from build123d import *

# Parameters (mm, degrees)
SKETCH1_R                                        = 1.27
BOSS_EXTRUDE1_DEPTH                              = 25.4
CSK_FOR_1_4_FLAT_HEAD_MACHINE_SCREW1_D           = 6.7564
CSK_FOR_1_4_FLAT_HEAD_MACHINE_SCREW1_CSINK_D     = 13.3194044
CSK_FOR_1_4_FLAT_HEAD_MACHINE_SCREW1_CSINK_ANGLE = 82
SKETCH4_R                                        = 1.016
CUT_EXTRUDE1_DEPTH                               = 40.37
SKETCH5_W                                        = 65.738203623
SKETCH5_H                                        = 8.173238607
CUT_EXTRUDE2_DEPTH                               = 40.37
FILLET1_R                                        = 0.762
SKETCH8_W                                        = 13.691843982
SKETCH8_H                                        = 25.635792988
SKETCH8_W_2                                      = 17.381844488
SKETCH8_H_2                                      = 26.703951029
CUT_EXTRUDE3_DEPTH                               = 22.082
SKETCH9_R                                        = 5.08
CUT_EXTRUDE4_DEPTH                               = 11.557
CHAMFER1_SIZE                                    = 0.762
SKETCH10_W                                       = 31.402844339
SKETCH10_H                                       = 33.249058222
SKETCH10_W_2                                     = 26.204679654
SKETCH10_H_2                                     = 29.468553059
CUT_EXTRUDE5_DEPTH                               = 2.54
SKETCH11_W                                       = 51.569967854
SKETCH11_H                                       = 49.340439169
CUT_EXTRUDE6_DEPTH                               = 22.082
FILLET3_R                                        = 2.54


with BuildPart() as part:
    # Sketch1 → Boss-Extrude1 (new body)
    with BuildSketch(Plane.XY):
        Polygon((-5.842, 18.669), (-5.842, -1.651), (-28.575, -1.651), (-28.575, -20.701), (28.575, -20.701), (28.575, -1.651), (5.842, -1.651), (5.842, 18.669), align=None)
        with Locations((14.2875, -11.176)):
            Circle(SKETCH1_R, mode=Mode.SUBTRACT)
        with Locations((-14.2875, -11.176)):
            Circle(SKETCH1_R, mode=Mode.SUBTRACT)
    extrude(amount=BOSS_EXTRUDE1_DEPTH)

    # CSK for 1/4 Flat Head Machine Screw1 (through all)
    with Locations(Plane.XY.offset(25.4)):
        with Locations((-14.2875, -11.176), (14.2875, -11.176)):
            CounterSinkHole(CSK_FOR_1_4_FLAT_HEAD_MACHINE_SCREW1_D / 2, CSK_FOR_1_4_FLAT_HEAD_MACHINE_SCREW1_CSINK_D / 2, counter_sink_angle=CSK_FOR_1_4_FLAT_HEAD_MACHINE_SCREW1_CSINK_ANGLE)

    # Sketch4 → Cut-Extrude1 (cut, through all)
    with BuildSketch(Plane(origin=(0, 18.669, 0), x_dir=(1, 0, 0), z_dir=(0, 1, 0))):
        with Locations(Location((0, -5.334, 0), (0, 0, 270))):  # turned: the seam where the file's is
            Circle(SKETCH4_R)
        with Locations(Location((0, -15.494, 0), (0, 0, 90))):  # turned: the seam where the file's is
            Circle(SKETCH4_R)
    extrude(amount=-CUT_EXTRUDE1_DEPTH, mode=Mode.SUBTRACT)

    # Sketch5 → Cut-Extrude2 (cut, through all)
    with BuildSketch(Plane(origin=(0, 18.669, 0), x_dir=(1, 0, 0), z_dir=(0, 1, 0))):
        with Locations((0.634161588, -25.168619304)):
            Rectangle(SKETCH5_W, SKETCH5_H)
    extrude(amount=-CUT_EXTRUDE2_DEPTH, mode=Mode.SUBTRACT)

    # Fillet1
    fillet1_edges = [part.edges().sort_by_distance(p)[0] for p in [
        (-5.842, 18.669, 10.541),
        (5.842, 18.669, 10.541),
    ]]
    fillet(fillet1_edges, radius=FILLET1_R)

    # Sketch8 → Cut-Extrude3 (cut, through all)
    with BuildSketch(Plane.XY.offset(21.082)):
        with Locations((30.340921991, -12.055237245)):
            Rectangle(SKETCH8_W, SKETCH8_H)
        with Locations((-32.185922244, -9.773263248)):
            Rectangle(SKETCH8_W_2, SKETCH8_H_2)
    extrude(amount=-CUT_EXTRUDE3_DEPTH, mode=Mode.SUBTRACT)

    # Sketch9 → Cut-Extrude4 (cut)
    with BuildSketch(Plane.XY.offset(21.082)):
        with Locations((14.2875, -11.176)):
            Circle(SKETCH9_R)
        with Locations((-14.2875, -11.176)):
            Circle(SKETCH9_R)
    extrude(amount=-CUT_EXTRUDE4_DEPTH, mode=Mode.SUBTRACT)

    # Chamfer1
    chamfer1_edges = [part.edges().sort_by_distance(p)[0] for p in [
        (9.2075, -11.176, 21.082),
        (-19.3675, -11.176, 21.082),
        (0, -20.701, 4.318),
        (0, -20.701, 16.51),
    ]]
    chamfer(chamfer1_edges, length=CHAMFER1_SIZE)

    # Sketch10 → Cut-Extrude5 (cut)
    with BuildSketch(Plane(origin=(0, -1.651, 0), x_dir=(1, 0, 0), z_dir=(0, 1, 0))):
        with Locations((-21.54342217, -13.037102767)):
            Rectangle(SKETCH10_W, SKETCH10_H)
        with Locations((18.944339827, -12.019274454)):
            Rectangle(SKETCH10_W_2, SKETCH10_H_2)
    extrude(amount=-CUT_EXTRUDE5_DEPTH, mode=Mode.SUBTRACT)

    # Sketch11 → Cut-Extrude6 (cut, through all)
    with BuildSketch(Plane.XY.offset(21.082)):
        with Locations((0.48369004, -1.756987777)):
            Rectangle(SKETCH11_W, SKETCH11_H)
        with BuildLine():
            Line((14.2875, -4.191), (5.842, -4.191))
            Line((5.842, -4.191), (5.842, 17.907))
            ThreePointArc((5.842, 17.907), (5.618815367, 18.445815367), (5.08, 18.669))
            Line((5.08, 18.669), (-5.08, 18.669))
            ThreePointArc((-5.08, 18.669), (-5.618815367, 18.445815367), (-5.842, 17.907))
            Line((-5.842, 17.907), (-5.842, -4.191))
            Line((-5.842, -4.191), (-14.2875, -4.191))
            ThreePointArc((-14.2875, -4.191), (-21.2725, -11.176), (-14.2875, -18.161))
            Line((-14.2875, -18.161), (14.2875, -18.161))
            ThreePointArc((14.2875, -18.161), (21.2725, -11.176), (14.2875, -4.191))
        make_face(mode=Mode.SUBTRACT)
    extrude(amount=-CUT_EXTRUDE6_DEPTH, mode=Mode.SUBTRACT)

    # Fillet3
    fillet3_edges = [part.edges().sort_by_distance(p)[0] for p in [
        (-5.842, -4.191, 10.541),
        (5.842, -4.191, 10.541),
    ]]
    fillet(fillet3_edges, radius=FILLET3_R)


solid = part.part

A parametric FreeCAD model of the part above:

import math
import FreeCAD as App
import Part
import Sketcher
from FreeCAD import Vector
Q = App.Units.Quantity


def edges_at(feature, points):
    """Names of the edges that pass closest to the given points."""
    edges = feature.Shape.Edges
    near = lambda p: min(range(len(edges)), key=lambda i: edges[i].distToShape(Part.Vertex(*p))[0])
    return sorted({f"Edge{near(p) + 1}" for p in points})


def add_polygon(sketch, points):
    """Adds a closed chain of lines whose ends are joined by coincident constraints."""
    first, n = sketch.GeometryCount, len(points)
    for a, b in zip(points, points[1:] + points[:1]):
        sketch.addGeometry(Part.LineSegment(App.Vector(*a, 0), App.Vector(*b, 0)), False)
    for i in range(n):
        sketch.addConstraint(Sketcher.Constraint("Coincident", first + i, 2, first + (i + 1) % n, 1))

doc = App.newDocument("Part")
body = doc.addObject("PartDesign::Body", "Body")

# Sketch on XY plane
sketch1 = body.newObject("Sketcher::SketchObject", "Sketch")
sketch1.AttachmentSupport = (doc.getObject("XY_Plane"), [""])
sketch1.MapMode = "FlatFace"
add_polygon(sketch1, [(-5.8, 18.7), (-5.8, -1.7), (-28.6, -1.7), (-28.6, -20.7), (28.6, -20.7), (28.6, -1.7), (5.8, -1.7), (5.8, 18.7)])  # lines 0-7
sketch1.addGeometry(Part.Circle(Vector(-14.3, -11.2, 0), Vector(0, 0, 1), 1.3), False)  # 8
sketch1.addGeometry(Part.Circle(Vector(14.3, -11.2, 0), Vector(0, 0, 1), 1.3), False)  # 9
sketch1.addConstraint([
    Sketcher.Constraint("Vertical", 0),
    Sketcher.Constraint("Horizontal", 1),
    Sketcher.Constraint("Vertical", 2),
    Sketcher.Constraint("Horizontal", 3),
    Sketcher.Constraint("Vertical", 4),
    Sketcher.Constraint("Horizontal", 5),
    Sketcher.Constraint("Vertical", 6),
    Sketcher.Constraint("Horizontal", 7),
    Sketcher.Constraint("Equal", 8, 9),
    Sketcher.Constraint("Symmetric", 8, 3, 9, 3, -2),
    Sketcher.Constraint("Symmetric", 1, 2, 4, 2, -2),
    Sketcher.Constraint("Equal", 1, 5),
    Sketcher.Constraint("Diameter", 8, Q("0.1 in")),
    Sketcher.Constraint("DistanceY", 0, 2, 0, 1, Q("0.8 in")),
    Sketcher.Constraint("DistanceX", 3, 1, 3, 2, Q("2.25 in")),
    Sketcher.Constraint("DistanceX", 7, 2, 7, 1, Q("0.46 in")),
    Sketcher.Constraint("DistanceY", 2, 2, 2, 1, Q("0.75 in")),
    Sketcher.Constraint("DistanceY", 8, 3, -1, 1, Q("0.44 in")),
    Sketcher.Constraint("DistanceX", 8, 3, -1, 1, Q("0.5625 in")),
    Sketcher.Constraint("DistanceY", 0, 2, -1, 1, Q("0.065 in")),
])
pad1 = body.newObject("PartDesign::Pad", "Pad")
pad1.Profile = sketch1
pad1.Length = Q("1 in")

# Sketch on XY plane
sketch2 = body.newObject("Sketcher::SketchObject", "Sketch001")
sketch2.AttachmentSupport = (doc.getObject("XY_Plane"), [""])
sketch2.MapMode = "FlatFace"
sketch2.AttachmentOffset = App.Placement(Vector(0, 0, 1 * 25.4), App.Rotation())
sketch2.addGeometry([
    Part.Circle(Vector(-14.3, -11.2, 0), Vector(0, 0, 1), 3.4),
    Part.Circle(Vector(14.3, -11.2, 0), Vector(0, 0, 1), 3.4),
], False)
sketch2.addConstraint([
    Sketcher.Constraint("Equal", 0, 1),
    Sketcher.Constraint("Symmetric", 0, 3, 1, 3, -2),
    Sketcher.Constraint("Diameter", 0, Q("0.266 in")),
    Sketcher.Constraint("DistanceY", 0, 3, -1, 1, Q("0.44 in")),
    Sketcher.Constraint("DistanceX", 0, 3, -1, 1, Q("0.5625 in")),
])
doc.recompute()
hole = body.newObject("PartDesign::Hole", "Hole")
hole.Profile = sketch2
hole.ThreadType = "None"
hole.Diameter = Q("0.266 in")
hole.DepthType = "ThroughAll"
hole.HoleCutType = "Countersink"
hole.HoleCutDiameter = 13.319404
hole.HoleCutCountersinkAngle = 82

# Sketch on XZ plane
sketch3 = body.newObject("Sketcher::SketchObject", "Sketch002")
sketch3.AttachmentSupport = (doc.getObject("XZ_Plane"), [""])
sketch3.MapMode = "FlatFace"
sketch3.AttachmentOffset = App.Placement(Vector(0, 0, -0.735 * 25.4), App.Rotation())
sketch3.addGeometry([
    Part.Circle(Vector(0, 5.3, 0), Vector(0, 0, 1), 1),
    Part.Circle(Vector(0, 15.5, 0), Vector(0, 0, 1), 1),
], False)
sketch3.addConstraint([
    Sketcher.Constraint("Equal", 0, 1),
    Sketcher.Constraint("PointOnObject", 0, 3, -2),
    Sketcher.Constraint("PointOnObject", 1, 3, -2),
    Sketcher.Constraint("Diameter", 0, Q("0.08 in")),
    Sketcher.Constraint("DistanceY", 0, 3, 1, 3, Q("0.4 in")),
    Sketcher.Constraint("DistanceY", -1, 1, 0, 3, Q("0.21 in")),
])
pocket1 = body.newObject("PartDesign::Pocket", "Pocket")
pocket1.Profile = sketch3
pocket1.Type = "ThroughAll"
pocket1.Reversed = True

# Sketch on XZ plane
sketch4 = body.newObject("Sketcher::SketchObject", "Sketch003")
sketch4.AttachmentSupport = (doc.getObject("XZ_Plane"), [""])
sketch4.MapMode = "FlatFace"
sketch4.AttachmentOffset = App.Placement(Vector(0, 0, -0.735 * 25.4), App.Rotation())
add_polygon(sketch4, [(-32, 21), (-32, 29), (34, 29), (34, 21)])  # lines 0-3
sketch4.addConstraint([
    Sketcher.Constraint("Vertical", 0),
    Sketcher.Constraint("Horizontal", 1),
    Sketcher.Constraint("Vertical", 2),
    Sketcher.Constraint("Horizontal", 3),
    Sketcher.Constraint("DistanceY", -1, 1, 2, 2, Q("0.83 in")),
    Sketcher.Constraint("DistanceY", 0, 1, 0, 2, 8.173239),
    Sketcher.Constraint("DistanceX", 1, 1, 1, 2, 65.738204),
    Sketcher.Constraint("DistanceX", 0, 2, -1, 1, 32.23494),
])
pocket2 = body.newObject("PartDesign::Pocket", "Pocket001")
pocket2.Profile = sketch4
pocket2.Type = "ThroughAll"
pocket2.Reversed = True
doc.recompute()

fillet = body.newObject("PartDesign::Fillet", "Fillet")
fillet.Base = (pocket2, edges_at(pocket2, [(-5.842, 18.669, 10.541), (5.842, 18.669, 10.541)]))
fillet.Radius = Q("0.03 in")

# Sketch on XY plane
sketch5 = body.newObject("Sketcher::SketchObject", "Sketch004")
sketch5.AttachmentSupport = (doc.getObject("XY_Plane"), [""])
sketch5.MapMode = "FlatFace"
sketch5.AttachmentOffset = App.Placement(Vector(0, 0, 0.83 * 25.4), App.Rotation())
add_polygon(sketch5, [(23, 1), (23, -25), (37, -25), (37, 1)])  # lines 0-3
add_polygon(sketch5, [(-41, 4), (-41, -23), (-23, -23), (-23, 4)])  # lines 4-7
sketch5.addConstraint([
    Sketcher.Constraint("Vertical", 0),
    Sketcher.Constraint("Horizontal", 1),
    Sketcher.Constraint("Vertical", 2),
    Sketcher.Constraint("Horizontal", 3),
    Sketcher.Constraint("Vertical", 4),
    Sketcher.Constraint("Horizontal", 5),
    Sketcher.Constraint("Vertical", 6),
    Sketcher.Constraint("Horizontal", 7),
    Sketcher.Constraint("DistanceX", 5, 2, 0, 2, Q("1.85 in")),
    Sketcher.Constraint("DistanceX", -1, 1, 0, 2, Q("0.925 in")),
    Sketcher.Constraint("DistanceY", 4, 2, 4, 1, 26.703951),
    Sketcher.Constraint("DistanceY", 4, 2, 3, 2, 23.887898),
    Sketcher.Constraint("DistanceX", 1, 1, 1, 2, 13.691844),
    Sketcher.Constraint("DistanceX", 5, 1, 5, 2, 17.381844),
    Sketcher.Constraint("DistanceY", 0, 2, 0, 1, 25.635793),
    Sketcher.Constraint("DistanceY", -1, 1, 2, 2, 0.762659),
])
pocket3 = body.newObject("PartDesign::Pocket", "Pocket002")
pocket3.Profile = sketch5
pocket3.Type = "ThroughAll"

# Sketch on XY plane
sketch6 = body.newObject("Sketcher::SketchObject", "Sketch005")
sketch6.AttachmentSupport = (doc.getObject("XY_Plane"), [""])
sketch6.MapMode = "FlatFace"
sketch6.AttachmentOffset = App.Placement(Vector(0, 0, 0.83 * 25.4), App.Rotation())
sketch6.addGeometry([
    Part.Circle(Vector(14, -11, 0), Vector(0, 0, 1), 5),
    Part.Circle(Vector(-14, -11, 0), Vector(0, 0, 1), 5),
], False)
sketch6.addConstraint([
    Sketcher.Constraint("Equal", 0, 1),
    Sketcher.Constraint("Symmetric", 0, 3, 1, 3, -2),
    Sketcher.Constraint("Diameter", 0, Q("0.4 in")),
    Sketcher.Constraint("DistanceY", 0, 3, -1, 1, Q("0.44 in")),
    Sketcher.Constraint("DistanceX", -1, 1, 0, 3, Q("0.5625 in")),
])
pocket4 = body.newObject("PartDesign::Pocket", "Pocket003")
pocket4.Profile = sketch6
pocket4.Length = Q("0.455 in")
doc.recompute()

chamfer = body.newObject("PartDesign::Chamfer", "Chamfer")
chamfer.Base = (pocket4, edges_at(pocket4, [
    (9.207, -11.176, 21.082),
    (-19.367, -11.176, 21.082),
    (0, -20.701, 4.318),
    (0, -20.701, 16.51),
]))
chamfer.Size = Q("0.03 in")

# Sketch on XZ plane
sketch7 = body.newObject("Sketcher::SketchObject", "Sketch006")
sketch7.AttachmentSupport = (doc.getObject("XZ_Plane"), [""])
sketch7.MapMode = "FlatFace"
sketch7.AttachmentOffset = App.Placement(Vector(0, 0, 0.065 * 25.4), App.Rotation())
add_polygon(sketch7, [(-37, -4), (-37, 30), (-6, 30), (-6, -4)])  # lines 0-3
add_polygon(sketch7, [(6, -3), (6, 27), (32, 27), (32, -3)])  # lines 4-7
sketch7.addConstraint([
    Sketcher.Constraint("Vertical", 0),
    Sketcher.Constraint("Horizontal", 1),
    Sketcher.Constraint("Vertical", 2),
    Sketcher.Constraint("Horizontal", 3),
    Sketcher.Constraint("Vertical", 4),
    Sketcher.Constraint("Horizontal", 5),
    Sketcher.Constraint("Vertical", 6),
    Sketcher.Constraint("Horizontal", 7),
    Sketcher.Constraint("DistanceX", 1, 2, -1, 1, Q("0.23 in")),
    Sketcher.Constraint("DistanceX", -1, 1, 4, 2, Q("0.23 in")),
    Sketcher.Constraint("DistanceX", 5, 1, 5, 2, 26.20468),
    Sketcher.Constraint("DistanceY", 0, 1, 0, 2, 33.249058),
    Sketcher.Constraint("DistanceX", 1, 1, 1, 2, 31.402844),
    Sketcher.Constraint("DistanceY", 4, 1, 4, 2, 29.468553),
    Sketcher.Constraint("DistanceY", -1, 1, 0, 2, 29.661632),
    Sketcher.Constraint("DistanceY", -1, 1, 4, 2, 26.753551),
])
pocket5 = body.newObject("PartDesign::Pocket", "Pocket004")
pocket5.Profile = sketch7
pocket5.Length = Q("0.1 in")
pocket5.Reversed = True

# Sketch on XY plane
sketch8 = body.newObject("Sketcher::SketchObject", "Sketch007")
sketch8.AttachmentSupport = (doc.getObject("XY_Plane"), [""])
sketch8.MapMode = "FlatFace"
sketch8.AttachmentOffset = App.Placement(Vector(0, 0, 0.83 * 25.4), App.Rotation())
add_polygon(sketch8, [(-25.3, 22.9), (-25.3, -26.4), (26.3, -26.4), (26.3, 22.9)])  # lines 0-3
sketch8.addGeometry(Part.LineSegment(Vector(5.8, -4.2, 0), Vector(14.3, -4.2, 0)), False)  # 4
sketch8.addGeometry(Part.ArcOfCircle(Part.Circle(Vector(14.3, -11.2, 0), Vector(0, 0, 1), 7), math.radians(-90), math.radians(90)), False)  # 5
sketch8.addGeometry(Part.LineSegment(Vector(14.3, -18.2, 0), Vector(-14.3, -18.2, 0)), False)  # 6
sketch8.addGeometry(Part.ArcOfCircle(Part.Circle(Vector(-14.3, -11.2, 0), Vector(0, 0, 1), 7), math.radians(90), math.radians(270)), False)  # 7
sketch8.addGeometry(Part.LineSegment(Vector(-14.3, -4.2, 0), Vector(-5.8, -4.2, 0)), False)  # 8
sketch8.addGeometry(Part.LineSegment(Vector(-5.8, -4.2, 0), Vector(-5.8, 17.9, 0)), False)  # 9
sketch8.addGeometry(Part.ArcOfCircle(Part.Circle(Vector(-5.1, 17.9, 0), Vector(0, 0, 1), 0.8), math.radians(90), math.radians(180)), False)  # 10
sketch8.addGeometry(Part.LineSegment(Vector(-5.1, 18.7, 0), Vector(5.1, 18.7, 0)), False)  # 11
sketch8.addGeometry(Part.ArcOfCircle(Part.Circle(Vector(5.1, 17.9, 0), Vector(0, 0, 1), 0.8), math.radians(0), math.radians(90)), False)  # 12
sketch8.addGeometry(Part.LineSegment(Vector(5.8, 17.9, 0), Vector(5.8, -4.2, 0)), False)  # 13
sketch8.addConstraint([
    Sketcher.Constraint("Tangent", 4, 2, 5, 2),
    Sketcher.Constraint("Tangent", 5, 1, 6, 1),
    Sketcher.Constraint("Tangent", 6, 2, 7, 2),
    Sketcher.Constraint("Tangent", 7, 1, 8, 1),
    Sketcher.Constraint("Coincident", 8, 2, 9, 1),
    Sketcher.Constraint("Tangent", 9, 2, 10, 2),
    Sketcher.Constraint("Tangent", 10, 1, 11, 1),
    Sketcher.Constraint("Tangent", 11, 2, 12, 2),
    Sketcher.Constraint("Tangent", 12, 1, 13, 1),
    Sketcher.Constraint("Coincident", 13, 2, 4, 1),
    Sketcher.Constraint("Vertical", 0),
    Sketcher.Constraint("Horizontal", 1),
    Sketcher.Constraint("Vertical", 2),
    Sketcher.Constraint("Horizontal", 3),
    Sketcher.Constraint("Horizontal", 4),
    Sketcher.Constraint("Horizontal", 6),
    Sketcher.Constraint("Horizontal", 8),
    Sketcher.Constraint("Vertical", 9),
    Sketcher.Constraint("Horizontal", 11),
    Sketcher.Constraint("Vertical", 13),
    Sketcher.Constraint("Equal", 5, 7),
    Sketcher.Constraint("Equal", 10, 12),
    Sketcher.Constraint("Equal", 4, 8),
    Sketcher.Constraint("Radius", 10, Q("0.03 in")),
    Sketcher.Constraint("DistanceX", 11, 1, 11, 2, Q("0.4 in")),
    Sketcher.Constraint("Radius", 5, Q("0.275 in")),
    Sketcher.Constraint("DistanceY", 9, 1, 9, 2, Q("0.87 in")),
    Sketcher.Constraint("DistanceX", 10, 3, -1, 1, Q("0.2 in")),
    Sketcher.Constraint("DistanceX", 6, 2, 6, 1, Q("1.125 in")),
    Sketcher.Constraint("DistanceY", 5, 3, -1, 1, Q("0.44 in")),
    Sketcher.Constraint("DistanceY", 0, 2, 0, 1, 49.340439),
    Sketcher.Constraint("DistanceX", 1, 1, 1, 2, 51.569968),
    Sketcher.Constraint("DistanceY", -1, 1, 2, 2, 22.913232),
    Sketcher.Constraint("DistanceX", 0, 2, -1, 1, 25.301294),
])
pocket6 = body.newObject("PartDesign::Pocket", "Pocket005")
pocket6.Profile = sketch8
pocket6.Type = "ThroughAll"
doc.recompute()

fillet2 = body.newObject("PartDesign::Fillet", "Fillet001")
fillet2.Base = (pocket6, edges_at(pocket6, [(-5.842, -4.191, 10.541), (5.842, -4.191, 10.541)]))
fillet2.Radius = Q("0.1 in")

doc.recompute()
